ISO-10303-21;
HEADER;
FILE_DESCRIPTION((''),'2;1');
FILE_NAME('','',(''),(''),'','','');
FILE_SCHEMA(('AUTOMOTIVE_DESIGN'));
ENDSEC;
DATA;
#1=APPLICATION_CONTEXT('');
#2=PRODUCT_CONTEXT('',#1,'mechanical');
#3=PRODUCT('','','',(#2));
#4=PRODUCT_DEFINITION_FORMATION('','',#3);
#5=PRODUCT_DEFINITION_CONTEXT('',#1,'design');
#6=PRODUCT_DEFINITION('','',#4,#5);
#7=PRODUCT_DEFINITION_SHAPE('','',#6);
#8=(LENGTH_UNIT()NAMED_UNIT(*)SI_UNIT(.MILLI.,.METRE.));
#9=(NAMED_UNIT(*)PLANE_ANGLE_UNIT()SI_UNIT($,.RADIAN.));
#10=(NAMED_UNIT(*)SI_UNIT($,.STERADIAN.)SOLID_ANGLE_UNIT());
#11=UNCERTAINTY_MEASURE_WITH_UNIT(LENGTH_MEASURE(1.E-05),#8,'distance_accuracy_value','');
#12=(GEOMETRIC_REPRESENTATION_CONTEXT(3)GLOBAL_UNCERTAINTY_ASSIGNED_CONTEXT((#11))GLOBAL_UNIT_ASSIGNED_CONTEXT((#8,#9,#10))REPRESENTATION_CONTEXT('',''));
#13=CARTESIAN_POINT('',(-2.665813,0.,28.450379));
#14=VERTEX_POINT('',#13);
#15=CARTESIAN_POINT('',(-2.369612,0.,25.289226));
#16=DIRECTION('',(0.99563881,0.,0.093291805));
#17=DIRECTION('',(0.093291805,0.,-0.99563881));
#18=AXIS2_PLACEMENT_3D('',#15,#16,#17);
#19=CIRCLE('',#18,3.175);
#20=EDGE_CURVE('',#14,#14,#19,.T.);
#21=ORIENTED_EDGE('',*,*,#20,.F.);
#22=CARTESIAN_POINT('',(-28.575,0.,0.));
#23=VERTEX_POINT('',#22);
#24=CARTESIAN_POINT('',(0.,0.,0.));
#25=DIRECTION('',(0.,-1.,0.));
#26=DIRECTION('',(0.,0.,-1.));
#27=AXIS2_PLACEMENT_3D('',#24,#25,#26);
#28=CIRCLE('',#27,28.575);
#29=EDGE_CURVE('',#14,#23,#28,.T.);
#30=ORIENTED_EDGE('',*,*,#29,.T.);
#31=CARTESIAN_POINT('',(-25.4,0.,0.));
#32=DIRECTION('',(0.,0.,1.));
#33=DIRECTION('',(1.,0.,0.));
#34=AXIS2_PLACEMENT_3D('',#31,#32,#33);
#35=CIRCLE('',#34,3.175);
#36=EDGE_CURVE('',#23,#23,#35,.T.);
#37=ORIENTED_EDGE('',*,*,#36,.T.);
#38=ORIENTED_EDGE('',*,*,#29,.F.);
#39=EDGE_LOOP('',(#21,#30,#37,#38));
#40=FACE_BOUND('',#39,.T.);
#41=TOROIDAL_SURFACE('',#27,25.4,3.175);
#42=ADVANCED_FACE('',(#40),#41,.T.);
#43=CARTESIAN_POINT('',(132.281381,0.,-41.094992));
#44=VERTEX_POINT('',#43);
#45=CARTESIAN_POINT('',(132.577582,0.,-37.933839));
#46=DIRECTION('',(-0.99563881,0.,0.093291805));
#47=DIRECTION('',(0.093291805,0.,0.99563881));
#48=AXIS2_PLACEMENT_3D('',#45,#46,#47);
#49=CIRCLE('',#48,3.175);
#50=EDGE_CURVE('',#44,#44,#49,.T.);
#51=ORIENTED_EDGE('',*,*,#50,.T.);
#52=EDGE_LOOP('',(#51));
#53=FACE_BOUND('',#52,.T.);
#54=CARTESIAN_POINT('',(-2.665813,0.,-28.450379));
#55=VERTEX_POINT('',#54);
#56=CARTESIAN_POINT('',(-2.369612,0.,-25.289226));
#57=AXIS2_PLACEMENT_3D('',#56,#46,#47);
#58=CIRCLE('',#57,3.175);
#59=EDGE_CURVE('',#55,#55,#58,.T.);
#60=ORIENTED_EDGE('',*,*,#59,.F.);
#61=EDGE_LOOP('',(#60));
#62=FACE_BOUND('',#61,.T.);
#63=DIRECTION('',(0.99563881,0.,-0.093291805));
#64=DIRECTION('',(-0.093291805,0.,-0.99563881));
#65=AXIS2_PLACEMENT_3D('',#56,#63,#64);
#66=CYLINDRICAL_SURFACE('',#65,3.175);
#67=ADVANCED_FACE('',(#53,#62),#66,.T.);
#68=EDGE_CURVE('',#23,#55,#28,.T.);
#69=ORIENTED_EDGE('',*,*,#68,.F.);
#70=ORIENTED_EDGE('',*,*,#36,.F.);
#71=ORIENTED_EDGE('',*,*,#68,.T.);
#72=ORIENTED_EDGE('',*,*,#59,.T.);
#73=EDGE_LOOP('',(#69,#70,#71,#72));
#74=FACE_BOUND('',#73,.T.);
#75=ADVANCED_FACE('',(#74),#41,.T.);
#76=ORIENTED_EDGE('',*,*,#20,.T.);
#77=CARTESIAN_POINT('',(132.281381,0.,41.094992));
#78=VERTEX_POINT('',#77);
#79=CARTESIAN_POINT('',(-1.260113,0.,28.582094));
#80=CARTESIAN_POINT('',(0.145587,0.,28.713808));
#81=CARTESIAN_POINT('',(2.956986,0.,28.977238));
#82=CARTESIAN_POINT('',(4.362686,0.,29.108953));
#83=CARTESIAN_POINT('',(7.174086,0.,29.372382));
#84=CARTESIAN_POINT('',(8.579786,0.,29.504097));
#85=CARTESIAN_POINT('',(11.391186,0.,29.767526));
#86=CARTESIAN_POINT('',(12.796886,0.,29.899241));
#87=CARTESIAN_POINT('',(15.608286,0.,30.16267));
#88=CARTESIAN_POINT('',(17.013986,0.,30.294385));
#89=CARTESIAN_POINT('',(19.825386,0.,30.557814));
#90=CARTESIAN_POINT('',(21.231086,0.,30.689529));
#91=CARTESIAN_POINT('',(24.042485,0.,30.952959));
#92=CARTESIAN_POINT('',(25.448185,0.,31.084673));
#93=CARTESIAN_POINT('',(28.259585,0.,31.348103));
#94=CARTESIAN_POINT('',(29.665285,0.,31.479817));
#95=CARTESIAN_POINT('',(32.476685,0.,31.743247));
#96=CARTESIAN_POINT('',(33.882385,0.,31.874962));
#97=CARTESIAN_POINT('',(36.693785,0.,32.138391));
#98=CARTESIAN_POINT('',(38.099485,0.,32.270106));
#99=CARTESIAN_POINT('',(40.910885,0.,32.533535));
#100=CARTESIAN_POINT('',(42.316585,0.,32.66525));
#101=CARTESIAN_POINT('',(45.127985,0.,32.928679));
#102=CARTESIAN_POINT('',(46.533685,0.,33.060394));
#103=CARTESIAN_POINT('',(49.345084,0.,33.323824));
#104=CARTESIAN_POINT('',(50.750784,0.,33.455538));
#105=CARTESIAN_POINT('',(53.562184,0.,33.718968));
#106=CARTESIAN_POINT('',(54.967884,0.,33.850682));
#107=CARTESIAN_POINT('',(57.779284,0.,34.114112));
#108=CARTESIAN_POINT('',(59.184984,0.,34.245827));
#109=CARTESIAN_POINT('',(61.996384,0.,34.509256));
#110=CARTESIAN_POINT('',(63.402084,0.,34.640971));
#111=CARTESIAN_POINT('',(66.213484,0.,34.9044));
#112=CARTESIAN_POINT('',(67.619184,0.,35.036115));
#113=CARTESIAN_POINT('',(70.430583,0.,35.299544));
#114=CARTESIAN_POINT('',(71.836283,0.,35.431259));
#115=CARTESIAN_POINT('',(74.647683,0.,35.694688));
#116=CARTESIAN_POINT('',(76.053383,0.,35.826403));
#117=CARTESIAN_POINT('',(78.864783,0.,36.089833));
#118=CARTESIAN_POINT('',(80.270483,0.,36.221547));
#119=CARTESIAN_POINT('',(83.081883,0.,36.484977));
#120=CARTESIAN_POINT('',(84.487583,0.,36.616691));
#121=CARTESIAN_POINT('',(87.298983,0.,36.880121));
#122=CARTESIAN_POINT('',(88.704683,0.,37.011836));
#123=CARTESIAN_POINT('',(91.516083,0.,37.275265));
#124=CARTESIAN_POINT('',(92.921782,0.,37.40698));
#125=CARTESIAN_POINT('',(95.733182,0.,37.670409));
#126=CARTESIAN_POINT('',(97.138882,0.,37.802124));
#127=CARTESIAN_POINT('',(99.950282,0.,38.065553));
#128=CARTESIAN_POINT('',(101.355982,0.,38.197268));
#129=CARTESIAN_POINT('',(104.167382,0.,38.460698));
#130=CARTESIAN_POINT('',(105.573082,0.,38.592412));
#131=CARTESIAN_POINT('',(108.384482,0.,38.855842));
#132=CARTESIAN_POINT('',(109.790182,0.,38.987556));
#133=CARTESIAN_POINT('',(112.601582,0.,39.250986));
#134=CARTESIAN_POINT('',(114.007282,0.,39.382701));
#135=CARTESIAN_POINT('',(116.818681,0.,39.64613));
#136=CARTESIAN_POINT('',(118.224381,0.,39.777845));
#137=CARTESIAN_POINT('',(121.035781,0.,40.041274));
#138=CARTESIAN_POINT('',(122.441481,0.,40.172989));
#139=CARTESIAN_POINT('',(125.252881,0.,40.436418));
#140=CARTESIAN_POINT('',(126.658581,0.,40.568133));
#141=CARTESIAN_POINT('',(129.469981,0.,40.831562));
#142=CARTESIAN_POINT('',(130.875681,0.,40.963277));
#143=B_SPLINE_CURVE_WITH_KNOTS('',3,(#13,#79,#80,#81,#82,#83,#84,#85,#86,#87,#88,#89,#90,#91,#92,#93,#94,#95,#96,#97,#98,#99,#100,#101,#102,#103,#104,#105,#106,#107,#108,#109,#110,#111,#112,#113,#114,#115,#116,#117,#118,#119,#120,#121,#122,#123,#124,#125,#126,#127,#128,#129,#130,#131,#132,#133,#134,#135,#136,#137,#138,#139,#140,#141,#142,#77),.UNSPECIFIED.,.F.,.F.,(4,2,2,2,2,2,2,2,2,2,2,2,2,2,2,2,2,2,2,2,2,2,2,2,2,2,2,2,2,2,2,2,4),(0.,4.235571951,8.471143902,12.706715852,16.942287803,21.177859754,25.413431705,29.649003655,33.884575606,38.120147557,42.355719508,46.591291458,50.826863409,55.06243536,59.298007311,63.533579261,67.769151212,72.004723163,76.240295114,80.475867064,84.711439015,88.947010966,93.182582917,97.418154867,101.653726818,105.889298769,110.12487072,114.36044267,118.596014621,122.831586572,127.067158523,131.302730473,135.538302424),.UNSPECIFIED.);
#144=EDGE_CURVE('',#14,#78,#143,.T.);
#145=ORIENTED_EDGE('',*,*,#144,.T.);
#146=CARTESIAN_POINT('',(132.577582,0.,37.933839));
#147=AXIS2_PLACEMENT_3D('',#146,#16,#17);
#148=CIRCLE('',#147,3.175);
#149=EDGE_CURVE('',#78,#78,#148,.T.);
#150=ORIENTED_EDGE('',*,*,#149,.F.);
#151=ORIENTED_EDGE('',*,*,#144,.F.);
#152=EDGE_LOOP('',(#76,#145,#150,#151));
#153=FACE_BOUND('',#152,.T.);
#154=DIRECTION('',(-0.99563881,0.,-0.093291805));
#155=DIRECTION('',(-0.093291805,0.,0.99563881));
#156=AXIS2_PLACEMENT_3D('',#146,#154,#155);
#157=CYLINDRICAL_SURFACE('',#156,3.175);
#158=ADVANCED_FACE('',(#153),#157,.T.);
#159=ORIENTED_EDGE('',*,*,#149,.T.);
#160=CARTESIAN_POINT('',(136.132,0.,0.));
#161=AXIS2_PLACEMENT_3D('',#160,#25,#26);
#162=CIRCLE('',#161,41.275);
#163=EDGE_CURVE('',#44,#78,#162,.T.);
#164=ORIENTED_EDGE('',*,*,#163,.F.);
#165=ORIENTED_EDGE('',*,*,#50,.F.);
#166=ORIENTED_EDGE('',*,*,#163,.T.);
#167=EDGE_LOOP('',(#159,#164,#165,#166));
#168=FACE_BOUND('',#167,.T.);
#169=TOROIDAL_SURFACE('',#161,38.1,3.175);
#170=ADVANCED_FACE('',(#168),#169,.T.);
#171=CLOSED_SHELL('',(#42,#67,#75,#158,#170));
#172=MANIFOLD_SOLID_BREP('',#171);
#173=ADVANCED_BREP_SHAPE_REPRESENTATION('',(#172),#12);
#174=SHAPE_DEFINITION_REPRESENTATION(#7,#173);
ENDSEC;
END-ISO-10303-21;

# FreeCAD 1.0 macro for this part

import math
import FreeCAD as App
import Part
import Sketcher
from FreeCAD import Vector
Q = App.Units.Quantity

doc = App.newDocument("Part")
body = doc.addObject("PartDesign::Body", "Body")

sketch1 = body.newObject("Sketcher::SketchObject", "Sketch")
sketch1.AttachmentSupport = (doc.getObject("XY_Plane"), [""])
sketch1.MapMode = "FlatFace"
sketch1.addGeometry(Part.Circle(Vector(-25.4, 0, 0), Vector(0, 0, 1), 3.2), False)
sketch1.addConstraint(Sketcher.Constraint("PointOnObject", 0, 3, -1))
sketch1.addConstraint(Sketcher.Constraint("Diameter", 0, Q("0.25 in")))
sketch1.addConstraint(Sketcher.Constraint("DistanceX", 0, 3, -1, 1, Q("1 in")))

sketch2 = body.newObject("Sketcher::SketchObject", "Sketch001")
sketch2.AttachmentSupport = (doc.getObject("XZ_Plane"), [""])
sketch2.MapMode = "FlatFace"
sketch2.addGeometry(Part.LineSegment(Vector(-2, -25, 0), Vector(133, -38, 0)), False)
sketch2.addGeometry(Part.ArcOfCircle(Part.Circle(Vector(136, 0, 0), Vector(0, 0, 1), 38), math.radians(-95), math.radians(95)), False)
sketch2.addGeometry(Part.LineSegment(Vector(133, 38, 0), Vector(-2, 25, 0)), False)
sketch2.addGeometry(Part.ArcOfCircle(Part.Circle(Vector(0, 0, 0), Vector(0, 0, 1), 25), math.radians(95), math.radians(265)), False)
sketch2.addConstraint(Sketcher.Constraint("Tangent", 0, 2, 1, 1))
sketch2.addConstraint(Sketcher.Constraint("Tangent", 1, 2, 2, 1))
sketch2.addConstraint(Sketcher.Constraint("Tangent", 2, 2, 3, 1))
sketch2.addConstraint(Sketcher.Constraint("Tangent", 3, 2, 0, 1))
sketch2.addConstraint(Sketcher.Constraint("Coincident", 3, 3, -1, 1))
sketch2.addConstraint(Sketcher.Constraint("PointOnObject", 1, 3, -1))
sketch2.addConstraint(Sketcher.Constraint("Radius", 3, Q("1 in")))
sketch2.addConstraint(Sketcher.Constraint("Radius", 1, Q("1.5 in")))
sketch2.addConstraint(Sketcher.Constraint("DistanceX", -1, 1, 1, 3, 136.132))
doc.recompute()

additivepipe = body.newObject("PartDesign::AdditivePipe", "AdditivePipe")
additivepipe.Profile = sketch1
additivepipe.Spine = (sketch2, ["Edge1", "Edge2", "Edge3", "Edge4"])

doc.recompute()
